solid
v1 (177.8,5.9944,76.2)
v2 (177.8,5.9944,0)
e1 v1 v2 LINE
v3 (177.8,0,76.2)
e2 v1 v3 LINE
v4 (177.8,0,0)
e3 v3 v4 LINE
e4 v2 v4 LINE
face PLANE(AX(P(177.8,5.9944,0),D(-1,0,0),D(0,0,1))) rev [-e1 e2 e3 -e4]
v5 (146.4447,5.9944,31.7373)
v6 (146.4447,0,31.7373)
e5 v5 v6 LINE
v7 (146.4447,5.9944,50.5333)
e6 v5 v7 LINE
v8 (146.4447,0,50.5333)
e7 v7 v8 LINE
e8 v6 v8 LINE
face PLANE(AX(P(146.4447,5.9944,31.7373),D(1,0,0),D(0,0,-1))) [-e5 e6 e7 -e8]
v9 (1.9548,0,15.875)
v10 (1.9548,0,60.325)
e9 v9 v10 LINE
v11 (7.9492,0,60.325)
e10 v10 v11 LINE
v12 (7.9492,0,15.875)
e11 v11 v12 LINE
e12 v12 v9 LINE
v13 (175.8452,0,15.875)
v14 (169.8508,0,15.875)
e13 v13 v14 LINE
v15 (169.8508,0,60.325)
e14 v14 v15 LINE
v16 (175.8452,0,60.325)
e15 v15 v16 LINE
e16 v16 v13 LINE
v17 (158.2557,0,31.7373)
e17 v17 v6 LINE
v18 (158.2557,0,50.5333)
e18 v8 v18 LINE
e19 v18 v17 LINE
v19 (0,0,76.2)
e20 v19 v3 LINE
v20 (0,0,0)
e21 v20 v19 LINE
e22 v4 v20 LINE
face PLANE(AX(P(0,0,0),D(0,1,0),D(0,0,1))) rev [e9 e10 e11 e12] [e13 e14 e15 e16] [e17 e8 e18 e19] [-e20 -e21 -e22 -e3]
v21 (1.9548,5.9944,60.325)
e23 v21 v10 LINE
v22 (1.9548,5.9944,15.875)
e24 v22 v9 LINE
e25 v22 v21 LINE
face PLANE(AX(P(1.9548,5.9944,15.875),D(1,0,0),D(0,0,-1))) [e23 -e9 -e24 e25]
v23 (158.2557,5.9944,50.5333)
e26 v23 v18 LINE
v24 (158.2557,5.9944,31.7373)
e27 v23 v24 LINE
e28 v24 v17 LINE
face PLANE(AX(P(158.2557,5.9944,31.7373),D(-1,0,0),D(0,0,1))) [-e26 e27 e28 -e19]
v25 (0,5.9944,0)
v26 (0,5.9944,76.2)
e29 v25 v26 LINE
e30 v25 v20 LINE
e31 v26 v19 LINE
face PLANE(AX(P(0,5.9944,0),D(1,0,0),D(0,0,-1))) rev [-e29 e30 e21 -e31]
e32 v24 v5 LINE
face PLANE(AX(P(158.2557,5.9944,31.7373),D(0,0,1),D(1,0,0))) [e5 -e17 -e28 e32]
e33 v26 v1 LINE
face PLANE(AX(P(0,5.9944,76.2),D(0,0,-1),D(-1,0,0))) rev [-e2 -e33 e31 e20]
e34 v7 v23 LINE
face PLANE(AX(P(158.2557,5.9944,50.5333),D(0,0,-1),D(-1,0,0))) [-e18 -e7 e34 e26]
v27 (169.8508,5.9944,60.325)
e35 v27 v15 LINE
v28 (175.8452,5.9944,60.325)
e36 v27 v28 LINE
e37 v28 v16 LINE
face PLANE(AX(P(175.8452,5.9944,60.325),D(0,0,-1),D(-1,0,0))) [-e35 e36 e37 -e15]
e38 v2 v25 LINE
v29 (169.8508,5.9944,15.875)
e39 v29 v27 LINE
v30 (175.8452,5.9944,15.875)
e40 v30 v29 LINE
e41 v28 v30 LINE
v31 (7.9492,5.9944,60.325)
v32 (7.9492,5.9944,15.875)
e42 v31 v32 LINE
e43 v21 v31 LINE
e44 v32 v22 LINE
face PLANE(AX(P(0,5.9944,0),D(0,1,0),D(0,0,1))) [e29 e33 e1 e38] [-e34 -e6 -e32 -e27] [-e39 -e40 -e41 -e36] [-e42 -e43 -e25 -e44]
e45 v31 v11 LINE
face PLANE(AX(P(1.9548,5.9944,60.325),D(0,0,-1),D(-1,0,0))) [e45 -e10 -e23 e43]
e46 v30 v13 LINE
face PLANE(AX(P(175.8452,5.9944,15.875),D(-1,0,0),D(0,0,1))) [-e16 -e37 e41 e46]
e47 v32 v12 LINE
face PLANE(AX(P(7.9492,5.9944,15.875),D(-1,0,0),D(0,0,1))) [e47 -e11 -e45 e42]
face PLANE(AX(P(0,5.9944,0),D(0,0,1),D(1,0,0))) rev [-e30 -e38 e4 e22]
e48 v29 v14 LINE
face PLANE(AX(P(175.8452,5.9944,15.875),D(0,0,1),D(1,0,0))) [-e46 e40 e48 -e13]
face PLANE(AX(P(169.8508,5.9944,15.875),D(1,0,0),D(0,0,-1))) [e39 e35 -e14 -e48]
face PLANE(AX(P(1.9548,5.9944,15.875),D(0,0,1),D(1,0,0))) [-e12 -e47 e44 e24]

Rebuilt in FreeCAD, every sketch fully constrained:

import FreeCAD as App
import Part
import Sketcher
from FreeCAD import Vector
Q = App.Units.Quantity

doc = App.newDocument("Part")
body = doc.addObject("PartDesign::Body", "Body")

sketch1 = doc.addObject("Sketcher::SketchObject", "Sketch")
body.addObject(sketch1)
sketch1.AttachmentSupport = (doc.XZ_Plane, [""])
sketch1.MapMode = "FlatFace"
sketch1.addGeometry([
    Part.LineSegment(Vector(0, 0, 0), Vector(0, 76, 0)),
    Part.LineSegment(Vector(0, 76, 0), Vector(178, 76, 0)),
    Part.LineSegment(Vector(178, 76, 0), Vector(178, 0, 0)),
    Part.LineSegment(Vector(178, 0, 0), Vector(0, 0, 0)),
    Part.LineSegment(Vector(158, 51, 0), Vector(146, 51, 0)),
    Part.LineSegment(Vector(146, 51, 0), Vector(146, 32, 0)),
    Part.LineSegment(Vector(146, 32, 0), Vector(158, 32, 0)),
    Part.LineSegment(Vector(158, 32, 0), Vector(158, 51, 0)),
    Part.LineSegment(Vector(8, 60, 0), Vector(2, 60, 0)),
    Part.LineSegment(Vector(2, 60, 0), Vector(2, 16, 0)),
    Part.LineSegment(Vector(2, 16, 0), Vector(8, 16, 0)),
    Part.LineSegment(Vector(8, 16, 0), Vector(8, 60, 0)),
    Part.LineSegment(Vector(176, 60, 0), Vector(170, 60, 0)),
    Part.LineSegment(Vector(170, 60, 0), Vector(170, 16, 0)),
    Part.LineSegment(Vector(170, 16, 0), Vector(176, 16, 0)),
    Part.LineSegment(Vector(176, 16, 0), Vector(176, 60, 0)),
], False)
sketch1.addConstraint([
    Sketcher.Constraint("Coincident", 0, 2, 1, 1),
    Sketcher.Constraint("Coincident", 1, 2, 2, 1),
    Sketcher.Constraint("Coincident", 2, 2, 3, 1),
    Sketcher.Constraint("Coincident", 3, 2, 0, 1),
    Sketcher.Constraint("Coincident", 4, 2, 5, 1),
    Sketcher.Constraint("Coincident", 5, 2, 6, 1),
    Sketcher.Constraint("Coincident", 6, 2, 7, 1),
    Sketcher.Constraint("Coincident", 7, 2, 4, 1),
    Sketcher.Constraint("Coincident", 8, 2, 9, 1),
    Sketcher.Constraint("Coincident", 9, 2, 10, 1),
    Sketcher.Constraint("Coincident", 10, 2, 11, 1),
    Sketcher.Constraint("Coincident", 11, 2, 8, 1),
    Sketcher.Constraint("Coincident", 12, 2, 13, 1),
    Sketcher.Constraint("Coincident", 13, 2, 14, 1),
    Sketcher.Constraint("Coincident", 14, 2, 15, 1),
    Sketcher.Constraint("Coincident", 15, 2, 12, 1),
    Sketcher.Constraint("Vertical", 0),
    Sketcher.Constraint("Horizontal", 1),
    Sketcher.Constraint("Vertical", 2),
    Sketcher.Constraint("Horizontal", 3),
    Sketcher.Constraint("Horizontal", 4),
    Sketcher.Constraint("Vertical", 5),
    Sketcher.Constraint("Horizontal", 6),
    Sketcher.Constraint("Vertical", 7),
    Sketcher.Constraint("Horizontal", 8),
    Sketcher.Constraint("Vertical", 9),
    Sketcher.Constraint("Horizontal", 10),
    Sketcher.Constraint("Vertical", 11),
    Sketcher.Constraint("Horizontal", 12),
    Sketcher.Constraint("Vertical", 13),
    Sketcher.Constraint("Horizontal", 14),
    Sketcher.Constraint("Vertical", 15),
    Sketcher.Constraint("Coincident", 3, 2, -1, 1),
    Sketcher.Constraint("Horizontal", 11, 2, 12, 2),
    Sketcher.Constraint("Horizontal", 10, 2, 13, 2),
    Sketcher.Constraint("Equal", 10, 12),
    Sketcher.Constraint("DistanceX", 1, 1, 1, 2, Q("7 in")),
    Sketcher.Constraint("DistanceY", 0, 1, 0, 2, Q("3 in")),
    Sketcher.Constraint("DistanceY", 5, 2, 5, 1, Q("0.74 in")),
    Sketcher.Constraint("DistanceY", 9, 2, 9, 1, Q("1.75 in")),
    Sketcher.Constraint("DistanceX", 4, 2, 4, 1, Q("0.465 in")),
    Sketcher.Constraint("DistanceX", 8, 2, 8, 1, Q("0.236 in")),
    Sketcher.Constraint("DistanceY", -1, 1, 8, 2, Q("2.375 in")),
    Sketcher.Constraint("DistanceY", -1, 1, 4, 2, Q("1.9895 in")),
    Sketcher.Constraint("DistanceX", 7, 2, 12, 2, Q("0.4565 in")),
    Sketcher.Constraint("DistanceX", -1, 1, 4, 2, 146.4447),
    Sketcher.Constraint("DistanceX", -1, 1, 8, 2, 1.9548),
])
pad1 = doc.addObject("PartDesign::Pad", "Pad")
body.addObject(pad1)
pad1.Profile = sketch1
pad1.Length = Q("0.236 in")
pad1.Reversed = True

doc.recompute()
